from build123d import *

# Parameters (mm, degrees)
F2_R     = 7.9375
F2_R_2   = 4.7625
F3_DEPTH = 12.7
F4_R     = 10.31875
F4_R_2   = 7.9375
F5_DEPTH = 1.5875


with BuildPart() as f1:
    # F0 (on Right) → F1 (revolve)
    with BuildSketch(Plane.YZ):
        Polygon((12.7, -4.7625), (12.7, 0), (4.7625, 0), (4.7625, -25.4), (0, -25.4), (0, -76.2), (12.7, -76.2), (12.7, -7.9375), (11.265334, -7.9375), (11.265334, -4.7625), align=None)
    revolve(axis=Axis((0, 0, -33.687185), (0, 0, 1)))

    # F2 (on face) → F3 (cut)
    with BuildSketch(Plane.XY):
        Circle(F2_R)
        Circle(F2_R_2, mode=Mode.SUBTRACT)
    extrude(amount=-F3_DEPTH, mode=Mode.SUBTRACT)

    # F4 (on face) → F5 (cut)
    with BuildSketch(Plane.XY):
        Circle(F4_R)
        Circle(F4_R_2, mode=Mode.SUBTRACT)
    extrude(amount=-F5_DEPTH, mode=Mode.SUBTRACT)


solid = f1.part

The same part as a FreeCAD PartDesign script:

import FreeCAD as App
import Part
import Sketcher

V = App.Vector
Q = App.Units.Quantity


def add_polygon(sketch, points):
    """Adds a closed chain of lines whose ends are joined by coincident constraints."""
    first, n = sketch.GeometryCount, len(points)
    for a, b in zip(points, points[1:] + points[:1]):
        sketch.addGeometry(Part.LineSegment(App.Vector(*a, 0), App.Vector(*b, 0)), False)
    for i in range(n):
        sketch.addConstraint(Sketcher.Constraint("Coincident", first + i, 2, first + (i + 1) % n, 1))

doc = App.newDocument("Part")
body = doc.addObject("PartDesign::Body", "Body")

sketch1 = body.newObject("Sketcher::SketchObject", "Sketch")
sketch1.AttachmentSupport = (doc.getObject("YZ_Plane"), [""])
sketch1.MapMode = "FlatFace"
add_polygon(sketch1, [(12.7, -4.7625), (12.7, 0), (4.7625, 0), (4.7625, -25.4), (0, -25.4), (0, -76.2), (12.7, -76.2), (12.7, -7.9375), (11.265334, -7.9375), (11.265334, -4.7625)])
sketch1.addConstraint(Sketcher.Constraint("Vertical", 0))
sketch1.addConstraint(Sketcher.Constraint("Horizontal", 1))
sketch1.addConstraint(Sketcher.Constraint("Vertical", 2))
sketch1.addConstraint(Sketcher.Constraint("Horizontal", 3))
sketch1.addConstraint(Sketcher.Constraint("Vertical", 4))
sketch1.addConstraint(Sketcher.Constraint("Horizontal", 5))
sketch1.addConstraint(Sketcher.Constraint("Vertical", 6))
sketch1.addConstraint(Sketcher.Constraint("Horizontal", 7))
sketch1.addConstraint(Sketcher.Constraint("Vertical", 8))
sketch1.addConstraint(Sketcher.Constraint("Horizontal", 9))
sketch1.addConstraint(Sketcher.Constraint("PointOnObject", 0, 2, -1))
sketch1.addConstraint(Sketcher.Constraint("PointOnObject", 3, 2, -2))
sketch1.addConstraint(Sketcher.Constraint("Vertical", 0, 2, 5, 2))
sketch1.addConstraint(Sketcher.Constraint("Equal", 3, 0))
sketch1.addConstraint(Sketcher.Constraint("DistanceY", 2, 2, 2, 1, Q("1 in")))
sketch1.addConstraint(Sketcher.Constraint("DistanceY", 4, 2, 4, 1, Q("2 in")))
sketch1.addConstraint(Sketcher.Constraint("DistanceX", 5, 1, 5, 2, Q("0.5 in")))
sketch1.addConstraint(Sketcher.Constraint("DistanceX", 1, 2, 1, 1, Q("0.3125 in")))
sketch1.addConstraint(Sketcher.Constraint("DistanceY", 6, 1, 6, 2, Q("2.6875 in")))
sketch1.addConstraint(Sketcher.Constraint("DistanceX", 7, 2, 7, 1, Q("1.434666 mm")))
revolution = body.newObject("PartDesign::Revolution", "Revolution")
revolution.Profile = sketch1
revolution.ReferenceAxis = (sketch1, ["V_Axis"])
revolution.Angle = 360

sketch2 = body.newObject("Sketcher::SketchObject", "Sketch001")
sketch2.AttachmentSupport = (doc.getObject("XY_Plane"), [""])
sketch2.MapMode = "FlatFace"
sketch2.addGeometry(Part.Circle(V(0, 0, 0), V(0, 0, 1), 7.9375), False)
sketch2.addGeometry(Part.Circle(V(0, 0, 0), V(0, 0, 1), 4.7625), False)
sketch2.addConstraint(Sketcher.Constraint("Coincident", 0, 3, -1, 1))
sketch2.addConstraint(Sketcher.Constraint("Coincident", 1, 3, -1, 1))
sketch2.addConstraint(Sketcher.Constraint("Diameter", 0, Q("0.625 in")))
sketch2.addConstraint(Sketcher.Constraint("Diameter", 1, Q("0.375 in")))
pocket1 = body.newObject("PartDesign::Pocket", "Pocket")
pocket1.Profile = sketch2
pocket1.Length = Q("0.5 in")

sketch3 = body.newObject("Sketcher::SketchObject", "Sketch002")
sketch3.AttachmentSupport = (doc.getObject("XY_Plane"), [""])
sketch3.MapMode = "FlatFace"
sketch3.addGeometry(Part.Circle(V(0, 0, 0), V(0, 0, 1), 10.31875), False)
sketch3.addGeometry(Part.Circle(V(0, 0, 0), V(0, 0, 1), 7.9375), False)
sketch3.addConstraint(Sketcher.Constraint("Coincident", 0, 3, -1, 1))
sketch3.addConstraint(Sketcher.Constraint("Coincident", 1, 3, -1, 1))
sketch3.addConstraint(Sketcher.Constraint("Diameter", 0, Q("0.8125 in")))
sketch3.addConstraint(Sketcher.Constraint("Diameter", 1, Q("0.625 in")))
pocket2 = body.newObject("PartDesign::Pocket", "Pocket001")
pocket2.Profile = sketch3
pocket2.Length = Q("0.0625 in")

doc.recompute()
